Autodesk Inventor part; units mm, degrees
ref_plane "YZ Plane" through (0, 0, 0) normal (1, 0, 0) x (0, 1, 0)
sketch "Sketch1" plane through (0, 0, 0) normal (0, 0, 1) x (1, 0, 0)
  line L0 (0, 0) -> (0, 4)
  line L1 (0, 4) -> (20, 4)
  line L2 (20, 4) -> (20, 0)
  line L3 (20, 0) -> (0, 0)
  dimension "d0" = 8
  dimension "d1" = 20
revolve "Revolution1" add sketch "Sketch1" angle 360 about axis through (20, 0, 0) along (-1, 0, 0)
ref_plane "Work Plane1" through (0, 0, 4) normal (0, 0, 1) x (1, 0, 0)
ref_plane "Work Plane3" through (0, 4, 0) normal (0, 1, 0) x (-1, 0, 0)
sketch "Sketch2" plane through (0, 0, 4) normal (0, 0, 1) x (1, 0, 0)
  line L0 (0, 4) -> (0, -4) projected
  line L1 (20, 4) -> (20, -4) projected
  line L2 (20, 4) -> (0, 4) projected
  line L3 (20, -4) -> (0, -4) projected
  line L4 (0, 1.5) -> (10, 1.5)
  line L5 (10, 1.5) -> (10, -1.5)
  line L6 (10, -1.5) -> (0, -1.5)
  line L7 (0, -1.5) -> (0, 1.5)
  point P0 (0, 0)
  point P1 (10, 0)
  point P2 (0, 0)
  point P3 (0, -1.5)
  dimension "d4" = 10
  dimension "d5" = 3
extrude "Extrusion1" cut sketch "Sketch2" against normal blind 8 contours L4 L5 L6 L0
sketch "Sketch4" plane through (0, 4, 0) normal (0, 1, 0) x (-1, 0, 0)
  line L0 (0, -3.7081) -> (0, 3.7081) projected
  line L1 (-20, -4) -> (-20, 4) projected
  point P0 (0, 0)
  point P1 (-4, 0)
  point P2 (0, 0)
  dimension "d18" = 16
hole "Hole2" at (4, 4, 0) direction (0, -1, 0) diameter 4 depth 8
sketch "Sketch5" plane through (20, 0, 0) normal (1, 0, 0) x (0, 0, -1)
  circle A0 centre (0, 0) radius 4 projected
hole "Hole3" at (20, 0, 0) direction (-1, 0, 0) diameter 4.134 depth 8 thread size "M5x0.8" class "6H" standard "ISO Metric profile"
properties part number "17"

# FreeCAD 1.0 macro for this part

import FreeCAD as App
import Part
import Sketcher
Q = App.Units.Quantity

doc = App.newDocument("Part")
params = doc.addObject("Spreadsheet::Sheet", "Params")
for row, (alias, value) in enumerate([
    ("sketch1_width", "20 mm"),
    ("sketch1_height", "4 mm"),
    ("revolution_angle", "360 deg"),
    ("sketch2_width", "10 mm"),
    ("sketch2_height", "3 mm"),
    ("pocket1_length", "8 mm"),
    ("sketch3_diameter", "4 mm"),
    ("hole_diameter", "4 mm"),
    ("hole_depth", "8 mm"),
    ("hole2_diameter", "4.134 mm"),
    ("hole2_depth", "8 mm"),
], start=1):
    params.set(f"A{row}", alias)
    params.set(f"B{row}", "=" + value)
    params.setAlias(f"B{row}", alias)

body = doc.addObject("PartDesign::Body", "Body")

# Sketch on XY plane
sketch1 = body.newObject("Sketcher::SketchObject", "Sketch")
sketch1.AttachmentSupport = (doc.getObject("XY_Plane"), [""])
sketch1.MapMode = "FlatFace"
sketch1.addGeometry([
    Part.LineSegment(App.Vector(0, 4, 0), App.Vector(0, 0, 0)),
    Part.LineSegment(App.Vector(0, 0, 0), App.Vector(20, 0, 0)),
    Part.LineSegment(App.Vector(20, 0, 0), App.Vector(20, 4, 0)),
    Part.LineSegment(App.Vector(20, 4, 0), App.Vector(0, 4, 0)),
], False)
sketch1.addConstraint([
    Sketcher.Constraint("Coincident", 0, 2, 1, 1),
    Sketcher.Constraint("Coincident", 1, 2, 2, 1),
    Sketcher.Constraint("Coincident", 2, 2, 3, 1),
    Sketcher.Constraint("Coincident", 3, 2, 0, 1),
    Sketcher.Constraint("Vertical", 0),
    Sketcher.Constraint("Horizontal", 1),
    Sketcher.Constraint("Vertical", 2),
    Sketcher.Constraint("Horizontal", 3),
    Sketcher.Constraint("Coincident", 0, 2, -1, 1),
    Sketcher.Constraint("DistanceX", 1, 1, 1, 2, Q("20 mm")),
    Sketcher.Constraint("DistanceY", 0, 2, 0, 1, Q("4 mm")),
])
sketch1.setExpression("Constraints[9]", "Params.sketch1_width")
sketch1.setExpression("Constraints[10]", "Params.sketch1_height")
revolution = body.newObject("PartDesign::Revolution", "Revolution")
revolution.Profile = sketch1
revolution.ReferenceAxis = (sketch1, ["H_Axis"])
revolution.setExpression("Angle", "Params.revolution_angle")

# Sketch on XY plane
sketch2 = body.newObject("Sketcher::SketchObject", "Sketch001")
sketch2.AttachmentSupport = (doc.getObject("XY_Plane"), [""])
sketch2.MapMode = "FlatFace"
sketch2.AttachmentOffset = App.Placement(App.Vector(0, 0, 4), App.Rotation())
sketch2.addGeometry([
    Part.LineSegment(App.Vector(10, 1.5, 0), App.Vector(0, 1.5, 0)),
    Part.LineSegment(App.Vector(0, 1.5, 0), App.Vector(0, -1.5, 0)),
    Part.LineSegment(App.Vector(0, -1.5, 0), App.Vector(10, -1.5, 0)),
    Part.LineSegment(App.Vector(10, -1.5, 0), App.Vector(10, 1.5, 0)),
], False)
sketch2.addConstraint([
    Sketcher.Constraint("Coincident", 0, 2, 1, 1),
    Sketcher.Constraint("Coincident", 1, 2, 2, 1),
    Sketcher.Constraint("Coincident", 2, 2, 3, 1),
    Sketcher.Constraint("Coincident", 3, 2, 0, 1),
    Sketcher.Constraint("Horizontal", 0),
    Sketcher.Constraint("Vertical", 1),
    Sketcher.Constraint("Horizontal", 2),
    Sketcher.Constraint("Vertical", 3),
    Sketcher.Constraint("Symmetric", 0, 2, 1, 2, -1, 1),
    Sketcher.Constraint("DistanceX", 0, 2, 0, 1, Q("10 mm")),
    Sketcher.Constraint("DistanceY", 1, 2, 1, 1, Q("3 mm")),
])
sketch2.setExpression("Constraints[9]", "Params.sketch2_width")
sketch2.setExpression("Constraints[10]", "Params.sketch2_height")
pocket1 = body.newObject("PartDesign::Pocket", "Pocket")
pocket1.Profile = sketch2
pocket1.setExpression("Length", "Params.pocket1_length")

# Sketch on XZ plane
sketch3 = body.newObject("Sketcher::SketchObject", "Sketch002")
sketch3.AttachmentSupport = (doc.getObject("XZ_Plane"), [""])
sketch3.MapMode = "FlatFace"
sketch3.AttachmentOffset = App.Placement(App.Vector(0, 0, -4), App.Rotation())
sketch3.addGeometry(Part.Circle(App.Vector(4, 0, 0), App.Vector(0, 0, 1), 2), False)
sketch3.addConstraint([
    Sketcher.Constraint("PointOnObject", 0, 3, -1),
    Sketcher.Constraint("Diameter", 0, Q("4 mm")),
    Sketcher.Constraint("DistanceX", -1, 1, 0, 3, Q("4 mm")),
])
sketch3.setExpression("Constraints[1]", "Params.sketch3_diameter")
doc.recompute()
hole = body.newObject("PartDesign::Hole", "Hole")
hole.Profile = sketch3
hole.ThreadType = "None"
hole.setExpression("Diameter", "Params.hole_diameter")
hole.DepthType = "Dimension"
hole.setExpression("Depth", "Params.hole_depth")
hole.DrillPoint = "Flat"
hole.Reversed = True

# Sketch on YZ plane
sketch4 = body.newObject("Sketcher::SketchObject", "Sketch003")
sketch4.AttachmentSupport = (doc.getObject("YZ_Plane"), [""])
sketch4.MapMode = "FlatFace"
sketch4.AttachmentOffset = App.Placement(App.Vector(0, 0, 20), App.Rotation())
sketch4.addGeometry(Part.Circle(App.Vector(0, 0, 0), App.Vector(0, 0, 1), 2.1), False)
sketch4.addConstraint([
    Sketcher.Constraint("Coincident", 0, 3, -1, 1),
    Sketcher.Constraint("Diameter", 0, Q("4.134 mm")),
])
doc.recompute()
hole2 = body.newObject("PartDesign::Hole", "Hole001")
hole2.Profile = sketch4
hole2.ThreadType = "None"
hole2.setExpression("Diameter", "Params.hole2_diameter")
hole2.DepthType = "Dimension"
hole2.setExpression("Depth", "Params.hole2_depth")
hole2.DrillPoint = "Flat"

doc.recompute()
